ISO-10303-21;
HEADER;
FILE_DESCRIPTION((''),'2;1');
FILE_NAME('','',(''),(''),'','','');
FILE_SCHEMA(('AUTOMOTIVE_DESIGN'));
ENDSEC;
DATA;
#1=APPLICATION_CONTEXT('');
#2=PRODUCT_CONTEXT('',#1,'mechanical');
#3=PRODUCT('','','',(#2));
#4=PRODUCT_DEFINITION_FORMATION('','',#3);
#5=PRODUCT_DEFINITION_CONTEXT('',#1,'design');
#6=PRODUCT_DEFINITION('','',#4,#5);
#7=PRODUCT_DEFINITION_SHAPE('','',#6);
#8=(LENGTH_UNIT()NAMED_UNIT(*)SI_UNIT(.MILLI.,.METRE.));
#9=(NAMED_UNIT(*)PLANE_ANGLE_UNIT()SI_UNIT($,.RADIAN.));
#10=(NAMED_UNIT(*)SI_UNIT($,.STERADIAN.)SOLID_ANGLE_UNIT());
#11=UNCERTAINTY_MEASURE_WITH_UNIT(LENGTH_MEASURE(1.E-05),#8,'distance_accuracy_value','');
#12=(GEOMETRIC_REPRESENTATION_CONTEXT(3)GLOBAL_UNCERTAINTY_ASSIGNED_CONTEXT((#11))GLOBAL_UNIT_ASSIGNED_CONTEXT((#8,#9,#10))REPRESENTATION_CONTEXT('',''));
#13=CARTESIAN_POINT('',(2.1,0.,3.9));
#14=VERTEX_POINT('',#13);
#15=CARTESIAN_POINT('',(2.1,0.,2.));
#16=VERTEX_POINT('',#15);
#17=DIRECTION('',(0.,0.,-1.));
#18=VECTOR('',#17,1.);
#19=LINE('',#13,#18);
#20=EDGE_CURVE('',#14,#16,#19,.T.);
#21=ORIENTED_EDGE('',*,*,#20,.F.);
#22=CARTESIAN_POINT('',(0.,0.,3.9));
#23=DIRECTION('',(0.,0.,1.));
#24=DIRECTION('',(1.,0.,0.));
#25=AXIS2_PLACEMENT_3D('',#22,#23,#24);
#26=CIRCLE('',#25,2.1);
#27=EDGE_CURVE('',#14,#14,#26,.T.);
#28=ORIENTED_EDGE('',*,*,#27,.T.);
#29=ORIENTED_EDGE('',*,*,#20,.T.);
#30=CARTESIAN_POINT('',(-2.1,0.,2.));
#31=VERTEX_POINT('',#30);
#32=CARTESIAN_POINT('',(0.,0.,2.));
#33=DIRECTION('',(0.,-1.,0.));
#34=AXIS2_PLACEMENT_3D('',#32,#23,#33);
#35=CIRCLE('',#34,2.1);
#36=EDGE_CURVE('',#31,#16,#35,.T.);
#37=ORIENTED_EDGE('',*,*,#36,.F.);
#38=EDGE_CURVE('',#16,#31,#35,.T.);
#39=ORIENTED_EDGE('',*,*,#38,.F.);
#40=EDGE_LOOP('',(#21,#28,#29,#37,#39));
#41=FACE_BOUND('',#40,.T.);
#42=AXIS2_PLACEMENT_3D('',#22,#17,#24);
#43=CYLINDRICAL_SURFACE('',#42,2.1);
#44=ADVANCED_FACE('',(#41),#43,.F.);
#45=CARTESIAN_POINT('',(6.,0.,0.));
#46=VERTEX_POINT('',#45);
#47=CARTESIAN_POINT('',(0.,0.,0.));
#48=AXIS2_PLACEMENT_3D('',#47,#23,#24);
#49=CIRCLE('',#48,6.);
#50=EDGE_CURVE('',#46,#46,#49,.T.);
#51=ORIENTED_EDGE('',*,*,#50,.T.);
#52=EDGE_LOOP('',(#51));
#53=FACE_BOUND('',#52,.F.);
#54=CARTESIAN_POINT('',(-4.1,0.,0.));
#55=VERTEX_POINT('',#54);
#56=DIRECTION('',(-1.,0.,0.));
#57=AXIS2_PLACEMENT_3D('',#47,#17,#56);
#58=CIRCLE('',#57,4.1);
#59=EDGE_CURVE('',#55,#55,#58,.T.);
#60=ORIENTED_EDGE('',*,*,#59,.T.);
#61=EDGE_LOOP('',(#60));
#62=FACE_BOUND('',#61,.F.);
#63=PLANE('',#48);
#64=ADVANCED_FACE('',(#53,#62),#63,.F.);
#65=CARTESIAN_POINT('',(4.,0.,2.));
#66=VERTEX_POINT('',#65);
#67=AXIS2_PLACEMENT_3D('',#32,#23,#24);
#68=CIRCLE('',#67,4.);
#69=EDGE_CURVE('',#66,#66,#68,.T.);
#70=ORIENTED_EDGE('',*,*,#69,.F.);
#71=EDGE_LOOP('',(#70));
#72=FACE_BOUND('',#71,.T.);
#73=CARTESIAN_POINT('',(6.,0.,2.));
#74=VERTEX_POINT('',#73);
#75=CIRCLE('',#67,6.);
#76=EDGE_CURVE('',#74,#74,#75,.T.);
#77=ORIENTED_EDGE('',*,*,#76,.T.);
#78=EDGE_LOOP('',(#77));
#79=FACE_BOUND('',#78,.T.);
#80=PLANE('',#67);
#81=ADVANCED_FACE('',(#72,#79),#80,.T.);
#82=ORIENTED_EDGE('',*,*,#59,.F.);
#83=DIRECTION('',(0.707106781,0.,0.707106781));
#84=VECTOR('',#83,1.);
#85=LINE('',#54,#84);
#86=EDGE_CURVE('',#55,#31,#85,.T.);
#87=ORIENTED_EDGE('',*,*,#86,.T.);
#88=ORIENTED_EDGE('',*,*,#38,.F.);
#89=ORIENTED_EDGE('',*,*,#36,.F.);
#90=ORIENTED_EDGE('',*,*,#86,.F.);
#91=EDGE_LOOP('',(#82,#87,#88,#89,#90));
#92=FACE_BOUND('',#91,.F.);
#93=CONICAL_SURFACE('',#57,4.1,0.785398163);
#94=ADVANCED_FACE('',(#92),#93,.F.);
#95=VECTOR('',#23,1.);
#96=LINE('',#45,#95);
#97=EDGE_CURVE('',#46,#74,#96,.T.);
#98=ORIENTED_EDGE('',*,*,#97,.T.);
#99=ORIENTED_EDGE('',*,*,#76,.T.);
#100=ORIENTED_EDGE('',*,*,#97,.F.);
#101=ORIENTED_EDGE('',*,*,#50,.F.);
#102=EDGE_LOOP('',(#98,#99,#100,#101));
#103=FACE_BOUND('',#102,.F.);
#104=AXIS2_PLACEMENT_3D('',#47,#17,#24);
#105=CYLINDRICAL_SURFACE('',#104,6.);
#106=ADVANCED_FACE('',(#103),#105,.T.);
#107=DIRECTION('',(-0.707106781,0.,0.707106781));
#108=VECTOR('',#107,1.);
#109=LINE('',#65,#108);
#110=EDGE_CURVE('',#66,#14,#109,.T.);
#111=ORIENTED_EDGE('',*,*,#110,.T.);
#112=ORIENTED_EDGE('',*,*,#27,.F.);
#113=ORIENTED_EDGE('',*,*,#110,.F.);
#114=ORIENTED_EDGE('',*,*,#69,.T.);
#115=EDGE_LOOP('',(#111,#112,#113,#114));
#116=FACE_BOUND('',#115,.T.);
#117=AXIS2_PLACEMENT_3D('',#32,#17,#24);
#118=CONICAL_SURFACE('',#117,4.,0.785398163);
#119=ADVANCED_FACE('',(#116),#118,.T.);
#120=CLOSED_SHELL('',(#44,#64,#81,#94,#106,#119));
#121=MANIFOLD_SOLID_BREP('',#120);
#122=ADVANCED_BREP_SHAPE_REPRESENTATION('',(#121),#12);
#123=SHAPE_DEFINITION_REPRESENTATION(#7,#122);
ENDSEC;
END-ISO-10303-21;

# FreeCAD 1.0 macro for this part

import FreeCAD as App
import Part
import Sketcher
from FreeCAD import Vector


def add_polygon(sketch, points):
    """Adds a closed chain of lines whose ends are joined by coincident constraints."""
    first, n = sketch.GeometryCount, len(points)
    for a, b in zip(points, points[1:] + points[:1]):
        sketch.addGeometry(Part.LineSegment(App.Vector(*a, 0), App.Vector(*b, 0)), False)
    for i in range(n):
        sketch.addConstraint(Sketcher.Constraint("Coincident", first + i, 2, first + (i + 1) % n, 1))

doc = App.newDocument("Part")
params = doc.addObject("Spreadsheet::Sheet", "Params")
for row, (alias, value) in enumerate([
    ("sketch1_diameter", "12 mm"),
    ("sketch1_diameter2", "4.2 mm"),
    ("pad1_length", "2 mm"),
    ("sketch2_width", "1.9 mm"),
    ("revolution_angle", "360 deg"),
    ("sketch3_diameter", "4.2 mm"),
    ("hole_diameter", "4.2 mm"),
    ("hole_depth", "25 mm"),
    ("hole_csink_diameter", "8.2 mm"),
], start=1):
    params.set(f"A{row}", alias)
    params.set(f"B{row}", "=" + value)
    params.setAlias(f"B{row}", alias)

body = doc.addObject("PartDesign::Body", "Body")

sketch1 = doc.addObject("Sketcher::SketchObject", "Sketch")
body.addObject(sketch1)
sketch1.AttachmentSupport = (doc.XY_Plane, [""])
sketch1.MapMode = "FlatFace"
sketch1.addGeometry(Part.Circle(Vector(0, 0, 0), Vector(0, 0, 1), 6), False)
sketch1.addGeometry(Part.Circle(Vector(0, 0, 0), Vector(0, 0, 1), 2.1), False)
sketch1.addConstraint(Sketcher.Constraint("Coincident", 0, 3, -1, 1))
sketch1.addConstraint(Sketcher.Constraint("Coincident", 1, 3, -1, 1))
sketch1.addConstraint(Sketcher.Constraint("Diameter", 0, 12.0))
sketch1.addConstraint(Sketcher.Constraint("Diameter", 1, 4.2))
sketch1.setExpression("Constraints[2]", "Params.sketch1_diameter")
sketch1.setExpression("Constraints[3]", "Params.sketch1_diameter2")
pad1 = doc.addObject("PartDesign::Pad", "Pad")
body.addObject(pad1)
pad1.Profile = sketch1
pad1.setExpression("Length", "Params.pad1_length")

sketch2 = doc.addObject("Sketcher::SketchObject", "Sketch001")
body.addObject(sketch2)
sketch2.AttachmentSupport = (doc.XZ_Plane, [""])
sketch2.MapMode = "FlatFace"
add_polygon(sketch2, [(2.1, 3.9), (2.1, 2), (4, 2)])
sketch2.addConstraint(Sketcher.Constraint("Vertical", 0))
sketch2.addConstraint(Sketcher.Constraint("Horizontal", 1))
sketch2.addConstraint(Sketcher.Constraint("Equal", 1, 0))
sketch2.addConstraint(Sketcher.Constraint("DistanceX", 1, 1, 1, 2, 1.9))
sketch2.addConstraint(Sketcher.Constraint("DistanceY", -1, 1, 0, 2, 2.0))
sketch2.addConstraint(Sketcher.Constraint("DistanceX", -1, 1, 1, 2, 4.0))
sketch2.setExpression("Constraints[6]", "Params.sketch2_width")
revolution = doc.addObject("PartDesign::Revolution", "Revolution")
body.addObject(revolution)
revolution.Profile = sketch2
revolution.ReferenceAxis = (sketch2, ["V_Axis"])
revolution.setExpression("Angle", "Params.revolution_angle")

sketch3 = doc.addObject("Sketcher::SketchObject", "Sketch002")
body.addObject(sketch3)
sketch3.AttachmentSupport = (doc.XY_Plane, [""])
sketch3.MapMode = "FlatFace"
sketch3.addGeometry(Part.Circle(Vector(0, 0, 0), Vector(0, 0, 1), 2.1), False)
sketch3.addConstraint(Sketcher.Constraint("Coincident", 0, 3, -1, 1))
sketch3.addConstraint(Sketcher.Constraint("Diameter", 0, 4.2))
sketch3.setExpression("Constraints[1]", "Params.sketch3_diameter")
doc.recompute()
hole = doc.addObject("PartDesign::Hole", "Hole")
body.addObject(hole)
hole.Profile = sketch3
hole.ThreadType = "None"
hole.setExpression("Diameter", "Params.hole_diameter")
hole.DepthType = "Dimension"
hole.setExpression("Depth", "Params.hole_depth")
hole.DrillPoint = "Flat"
hole.HoleCutType = "Countersink"
hole.setExpression("HoleCutDiameter", "Params.hole_csink_diameter")
hole.HoleCutCountersinkAngle = 90
hole.Reversed = True

doc.recompute()
